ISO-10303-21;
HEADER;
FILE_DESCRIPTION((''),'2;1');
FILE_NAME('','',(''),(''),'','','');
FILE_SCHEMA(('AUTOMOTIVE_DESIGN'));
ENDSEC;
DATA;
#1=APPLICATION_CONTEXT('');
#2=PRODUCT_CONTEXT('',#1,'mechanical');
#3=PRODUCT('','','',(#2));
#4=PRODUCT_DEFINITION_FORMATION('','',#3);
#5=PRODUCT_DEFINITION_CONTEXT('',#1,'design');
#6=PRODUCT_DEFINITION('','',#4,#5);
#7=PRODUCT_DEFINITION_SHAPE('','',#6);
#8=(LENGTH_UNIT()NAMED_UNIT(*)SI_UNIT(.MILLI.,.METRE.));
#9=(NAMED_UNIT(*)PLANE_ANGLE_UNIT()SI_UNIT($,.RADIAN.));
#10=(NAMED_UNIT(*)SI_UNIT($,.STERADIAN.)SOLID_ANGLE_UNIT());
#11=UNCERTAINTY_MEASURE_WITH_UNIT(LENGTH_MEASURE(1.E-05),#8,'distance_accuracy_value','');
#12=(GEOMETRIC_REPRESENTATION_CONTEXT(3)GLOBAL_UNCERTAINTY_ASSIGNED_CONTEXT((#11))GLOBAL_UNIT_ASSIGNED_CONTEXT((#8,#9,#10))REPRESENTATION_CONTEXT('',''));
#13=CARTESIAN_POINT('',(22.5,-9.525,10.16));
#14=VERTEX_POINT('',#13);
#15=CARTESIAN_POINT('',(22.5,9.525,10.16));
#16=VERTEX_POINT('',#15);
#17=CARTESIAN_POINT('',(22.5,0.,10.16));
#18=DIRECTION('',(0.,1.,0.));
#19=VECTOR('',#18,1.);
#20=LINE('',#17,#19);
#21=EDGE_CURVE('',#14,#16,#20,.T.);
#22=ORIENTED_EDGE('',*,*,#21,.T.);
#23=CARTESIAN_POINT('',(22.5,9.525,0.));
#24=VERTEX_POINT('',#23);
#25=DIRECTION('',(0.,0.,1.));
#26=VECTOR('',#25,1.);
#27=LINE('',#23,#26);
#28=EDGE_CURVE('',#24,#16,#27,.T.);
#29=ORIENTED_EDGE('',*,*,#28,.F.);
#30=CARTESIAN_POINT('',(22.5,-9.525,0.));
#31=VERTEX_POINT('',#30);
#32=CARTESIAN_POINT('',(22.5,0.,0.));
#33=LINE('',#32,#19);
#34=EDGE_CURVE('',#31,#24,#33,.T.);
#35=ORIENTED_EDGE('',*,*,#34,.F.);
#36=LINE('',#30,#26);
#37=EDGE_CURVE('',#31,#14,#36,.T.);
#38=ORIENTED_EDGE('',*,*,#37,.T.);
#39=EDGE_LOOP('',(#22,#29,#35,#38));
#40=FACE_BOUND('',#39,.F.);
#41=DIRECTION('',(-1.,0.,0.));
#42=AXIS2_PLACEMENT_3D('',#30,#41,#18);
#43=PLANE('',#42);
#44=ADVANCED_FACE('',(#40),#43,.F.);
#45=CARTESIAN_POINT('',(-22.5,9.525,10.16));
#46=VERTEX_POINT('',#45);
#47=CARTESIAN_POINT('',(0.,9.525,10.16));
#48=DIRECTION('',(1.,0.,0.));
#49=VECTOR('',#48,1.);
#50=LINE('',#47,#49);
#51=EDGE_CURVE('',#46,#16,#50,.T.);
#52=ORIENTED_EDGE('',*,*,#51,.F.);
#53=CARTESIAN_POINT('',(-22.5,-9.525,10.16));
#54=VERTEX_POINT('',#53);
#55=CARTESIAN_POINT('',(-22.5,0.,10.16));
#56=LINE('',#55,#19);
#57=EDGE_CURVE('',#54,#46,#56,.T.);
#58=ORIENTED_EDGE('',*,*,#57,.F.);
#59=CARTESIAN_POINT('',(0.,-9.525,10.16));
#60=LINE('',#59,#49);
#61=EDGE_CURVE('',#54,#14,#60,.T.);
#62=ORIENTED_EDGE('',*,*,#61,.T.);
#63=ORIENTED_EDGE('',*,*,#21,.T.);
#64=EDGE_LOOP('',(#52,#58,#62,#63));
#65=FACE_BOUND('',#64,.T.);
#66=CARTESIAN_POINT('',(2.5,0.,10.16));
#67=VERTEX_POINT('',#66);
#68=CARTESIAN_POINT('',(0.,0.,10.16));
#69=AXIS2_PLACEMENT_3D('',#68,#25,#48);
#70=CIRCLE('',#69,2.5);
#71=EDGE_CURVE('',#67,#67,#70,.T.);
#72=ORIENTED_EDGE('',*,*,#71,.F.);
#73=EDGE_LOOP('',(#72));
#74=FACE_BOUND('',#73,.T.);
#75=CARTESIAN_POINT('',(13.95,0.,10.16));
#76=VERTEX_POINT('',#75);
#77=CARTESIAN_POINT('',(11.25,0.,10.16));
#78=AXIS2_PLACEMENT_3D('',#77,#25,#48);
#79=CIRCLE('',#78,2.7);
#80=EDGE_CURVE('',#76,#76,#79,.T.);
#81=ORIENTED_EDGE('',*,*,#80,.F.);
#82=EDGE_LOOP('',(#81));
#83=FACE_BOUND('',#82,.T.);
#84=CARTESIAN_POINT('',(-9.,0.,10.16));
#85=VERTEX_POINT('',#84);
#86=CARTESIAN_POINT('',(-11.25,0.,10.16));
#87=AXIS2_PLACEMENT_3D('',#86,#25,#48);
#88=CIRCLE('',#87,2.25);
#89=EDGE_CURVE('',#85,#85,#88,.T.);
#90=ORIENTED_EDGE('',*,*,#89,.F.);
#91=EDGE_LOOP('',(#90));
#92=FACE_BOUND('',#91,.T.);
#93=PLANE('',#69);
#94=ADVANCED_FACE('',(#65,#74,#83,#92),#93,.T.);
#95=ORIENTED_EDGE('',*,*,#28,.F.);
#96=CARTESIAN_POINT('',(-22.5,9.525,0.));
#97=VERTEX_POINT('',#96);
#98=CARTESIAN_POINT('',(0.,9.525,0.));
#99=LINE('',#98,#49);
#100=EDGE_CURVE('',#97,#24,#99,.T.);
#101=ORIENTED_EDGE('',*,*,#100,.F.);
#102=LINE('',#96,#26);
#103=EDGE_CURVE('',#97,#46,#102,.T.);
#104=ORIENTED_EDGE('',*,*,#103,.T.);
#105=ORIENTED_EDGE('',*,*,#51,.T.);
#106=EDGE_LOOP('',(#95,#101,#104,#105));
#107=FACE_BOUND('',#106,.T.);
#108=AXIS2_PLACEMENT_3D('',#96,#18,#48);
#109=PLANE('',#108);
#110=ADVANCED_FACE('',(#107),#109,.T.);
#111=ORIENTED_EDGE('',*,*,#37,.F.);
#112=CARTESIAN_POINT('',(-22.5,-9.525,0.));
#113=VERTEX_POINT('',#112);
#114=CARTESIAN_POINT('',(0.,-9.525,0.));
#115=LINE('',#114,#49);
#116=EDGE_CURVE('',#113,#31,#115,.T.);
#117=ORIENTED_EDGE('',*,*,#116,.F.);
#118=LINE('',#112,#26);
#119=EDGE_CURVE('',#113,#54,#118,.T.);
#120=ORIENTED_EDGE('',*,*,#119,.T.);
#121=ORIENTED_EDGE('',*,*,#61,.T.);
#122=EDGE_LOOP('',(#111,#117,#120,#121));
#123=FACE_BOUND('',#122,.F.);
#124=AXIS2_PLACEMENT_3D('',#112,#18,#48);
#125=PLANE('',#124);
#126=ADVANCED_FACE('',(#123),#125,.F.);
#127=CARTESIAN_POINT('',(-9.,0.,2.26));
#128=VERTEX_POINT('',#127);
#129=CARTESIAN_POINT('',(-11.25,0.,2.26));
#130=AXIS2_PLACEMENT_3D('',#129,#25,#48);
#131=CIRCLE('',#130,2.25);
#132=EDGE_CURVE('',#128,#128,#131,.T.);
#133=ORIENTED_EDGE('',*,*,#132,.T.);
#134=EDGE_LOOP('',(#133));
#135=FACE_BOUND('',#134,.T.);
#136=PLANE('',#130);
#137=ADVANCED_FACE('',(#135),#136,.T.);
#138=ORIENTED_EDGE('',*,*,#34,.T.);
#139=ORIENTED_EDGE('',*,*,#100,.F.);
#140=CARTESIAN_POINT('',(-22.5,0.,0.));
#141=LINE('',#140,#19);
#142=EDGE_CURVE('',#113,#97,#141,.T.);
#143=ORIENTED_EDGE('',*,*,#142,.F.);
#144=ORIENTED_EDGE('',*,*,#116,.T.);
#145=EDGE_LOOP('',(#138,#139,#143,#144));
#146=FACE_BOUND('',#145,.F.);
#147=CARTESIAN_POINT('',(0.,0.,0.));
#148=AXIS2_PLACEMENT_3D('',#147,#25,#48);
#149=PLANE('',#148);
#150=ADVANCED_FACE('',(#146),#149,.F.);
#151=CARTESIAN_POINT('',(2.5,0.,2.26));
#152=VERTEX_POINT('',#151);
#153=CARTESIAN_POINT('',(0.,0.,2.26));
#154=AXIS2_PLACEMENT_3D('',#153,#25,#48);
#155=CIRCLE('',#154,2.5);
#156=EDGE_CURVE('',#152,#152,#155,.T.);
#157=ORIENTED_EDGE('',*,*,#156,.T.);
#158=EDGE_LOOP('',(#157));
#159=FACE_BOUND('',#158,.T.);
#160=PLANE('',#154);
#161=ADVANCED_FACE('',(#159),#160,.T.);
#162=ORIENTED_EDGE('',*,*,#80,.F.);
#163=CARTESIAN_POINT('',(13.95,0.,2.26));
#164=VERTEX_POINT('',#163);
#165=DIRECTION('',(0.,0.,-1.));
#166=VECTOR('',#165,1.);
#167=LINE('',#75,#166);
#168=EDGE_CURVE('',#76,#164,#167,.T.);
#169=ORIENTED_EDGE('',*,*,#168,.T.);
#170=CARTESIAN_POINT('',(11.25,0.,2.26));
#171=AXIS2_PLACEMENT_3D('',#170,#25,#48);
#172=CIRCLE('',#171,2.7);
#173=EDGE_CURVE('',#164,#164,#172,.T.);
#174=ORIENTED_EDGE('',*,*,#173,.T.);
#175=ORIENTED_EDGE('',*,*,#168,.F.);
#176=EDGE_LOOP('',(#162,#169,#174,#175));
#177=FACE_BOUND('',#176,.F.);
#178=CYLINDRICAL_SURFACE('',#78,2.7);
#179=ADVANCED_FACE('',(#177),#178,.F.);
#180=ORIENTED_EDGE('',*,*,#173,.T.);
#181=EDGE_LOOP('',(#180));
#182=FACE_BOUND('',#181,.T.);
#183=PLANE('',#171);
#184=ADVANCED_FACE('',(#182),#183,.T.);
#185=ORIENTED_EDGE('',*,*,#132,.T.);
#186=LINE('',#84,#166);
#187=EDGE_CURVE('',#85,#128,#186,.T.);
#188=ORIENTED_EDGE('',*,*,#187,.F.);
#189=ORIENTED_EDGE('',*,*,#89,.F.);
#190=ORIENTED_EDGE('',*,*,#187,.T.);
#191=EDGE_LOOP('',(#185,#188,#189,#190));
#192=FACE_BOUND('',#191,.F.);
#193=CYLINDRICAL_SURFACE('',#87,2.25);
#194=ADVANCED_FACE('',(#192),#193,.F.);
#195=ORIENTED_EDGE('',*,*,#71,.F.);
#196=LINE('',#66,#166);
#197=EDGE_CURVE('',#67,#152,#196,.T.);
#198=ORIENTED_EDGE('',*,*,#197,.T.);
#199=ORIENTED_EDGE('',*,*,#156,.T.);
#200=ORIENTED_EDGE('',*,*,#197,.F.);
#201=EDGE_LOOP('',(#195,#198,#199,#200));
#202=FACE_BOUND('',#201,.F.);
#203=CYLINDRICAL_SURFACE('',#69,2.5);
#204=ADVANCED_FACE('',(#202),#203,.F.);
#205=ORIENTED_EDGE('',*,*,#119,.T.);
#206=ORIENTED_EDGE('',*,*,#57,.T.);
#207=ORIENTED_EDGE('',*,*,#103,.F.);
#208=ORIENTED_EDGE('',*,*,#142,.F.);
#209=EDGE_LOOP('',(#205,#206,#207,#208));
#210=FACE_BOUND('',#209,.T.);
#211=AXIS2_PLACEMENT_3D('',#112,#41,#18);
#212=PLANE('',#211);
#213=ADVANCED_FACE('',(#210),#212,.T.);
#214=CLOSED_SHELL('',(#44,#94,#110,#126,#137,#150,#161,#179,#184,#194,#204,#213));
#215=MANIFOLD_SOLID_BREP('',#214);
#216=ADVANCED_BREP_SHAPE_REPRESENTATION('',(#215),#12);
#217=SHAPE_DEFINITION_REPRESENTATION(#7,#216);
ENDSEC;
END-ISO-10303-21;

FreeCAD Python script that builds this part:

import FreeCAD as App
import Part
import Sketcher

V = App.Vector

doc = App.newDocument("Part")
body = doc.addObject("PartDesign::Body", "Body")

# Sketch on XY plane
sketch1 = doc.addObject("Sketcher::SketchObject", "Sketch")
body.addObject(sketch1)
sketch1.AttachmentSupport = (doc.XY_Plane, [""])
sketch1.MapMode = "FlatFace"
sketch1.addGeometry([
    Part.LineSegment(V(-22, 10, 0), V(-22, -10, 0)),
    Part.LineSegment(V(-22, -10, 0), V(22, -10, 0)),
    Part.LineSegment(V(22, -10, 0), V(22, 10, 0)),
    Part.LineSegment(V(22, 10, 0), V(-22, 10, 0)),
], False)
sketch1.addConstraint([
    Sketcher.Constraint("Coincident", 0, 2, 1, 1),
    Sketcher.Constraint("Coincident", 1, 2, 2, 1),
    Sketcher.Constraint("Coincident", 2, 2, 3, 1),
    Sketcher.Constraint("Coincident", 3, 2, 0, 1),
    Sketcher.Constraint("Vertical", 0),
    Sketcher.Constraint("Horizontal", 1),
    Sketcher.Constraint("Vertical", 2),
    Sketcher.Constraint("Horizontal", 3),
    Sketcher.Constraint("Symmetric", 0, 2, 2, 2, -1, 1),
    Sketcher.Constraint("DistanceX", 1, 1, 1, 2, 45.0),
    Sketcher.Constraint("DistanceY", 0, 2, 0, 1, 19.05),
])
pad1 = doc.addObject("PartDesign::Pad", "Pad")
body.addObject(pad1)
pad1.Profile = sketch1
pad1.Length = 10.16

# Sketch on XY plane
sketch2 = doc.addObject("Sketcher::SketchObject", "Sketch001")
body.addObject(sketch2)
sketch2.AttachmentSupport = (doc.XY_Plane, [""])
sketch2.MapMode = "FlatFace"
sketch2.AttachmentOffset = App.Placement(V(0, 0, 10.16), App.Rotation())
sketch2.addGeometry([
    Part.Circle(V(-11.2, 0, 0), V(0, 0, 1), 2.2),
    Part.Circle(V(0, 0, 0), V(0, 0, 1), 2.5),
    Part.Circle(V(11.2, 0, 0), V(0, 0, 1), 2.7),
], False)
sketch2.addConstraint([
    Sketcher.Constraint("Coincident", 1, 3, -1, 1),
    Sketcher.Constraint("Symmetric", 0, 3, 2, 3, -1, 1),
    Sketcher.Constraint("PointOnObject", 0, 3, -1),
    Sketcher.Constraint("Diameter", 1, 5.0),
    Sketcher.Constraint("Diameter", 0, 4.5),
    Sketcher.Constraint("Diameter", 2, 5.4),
    Sketcher.Constraint("DistanceX", 0, 3, 2, 3, 22.5),
])
pocket1 = doc.addObject("PartDesign::Pocket", "Pocket")
body.addObject(pocket1)
pocket1.Profile = sketch2
pocket1.Length = 7.9

doc.recompute()
